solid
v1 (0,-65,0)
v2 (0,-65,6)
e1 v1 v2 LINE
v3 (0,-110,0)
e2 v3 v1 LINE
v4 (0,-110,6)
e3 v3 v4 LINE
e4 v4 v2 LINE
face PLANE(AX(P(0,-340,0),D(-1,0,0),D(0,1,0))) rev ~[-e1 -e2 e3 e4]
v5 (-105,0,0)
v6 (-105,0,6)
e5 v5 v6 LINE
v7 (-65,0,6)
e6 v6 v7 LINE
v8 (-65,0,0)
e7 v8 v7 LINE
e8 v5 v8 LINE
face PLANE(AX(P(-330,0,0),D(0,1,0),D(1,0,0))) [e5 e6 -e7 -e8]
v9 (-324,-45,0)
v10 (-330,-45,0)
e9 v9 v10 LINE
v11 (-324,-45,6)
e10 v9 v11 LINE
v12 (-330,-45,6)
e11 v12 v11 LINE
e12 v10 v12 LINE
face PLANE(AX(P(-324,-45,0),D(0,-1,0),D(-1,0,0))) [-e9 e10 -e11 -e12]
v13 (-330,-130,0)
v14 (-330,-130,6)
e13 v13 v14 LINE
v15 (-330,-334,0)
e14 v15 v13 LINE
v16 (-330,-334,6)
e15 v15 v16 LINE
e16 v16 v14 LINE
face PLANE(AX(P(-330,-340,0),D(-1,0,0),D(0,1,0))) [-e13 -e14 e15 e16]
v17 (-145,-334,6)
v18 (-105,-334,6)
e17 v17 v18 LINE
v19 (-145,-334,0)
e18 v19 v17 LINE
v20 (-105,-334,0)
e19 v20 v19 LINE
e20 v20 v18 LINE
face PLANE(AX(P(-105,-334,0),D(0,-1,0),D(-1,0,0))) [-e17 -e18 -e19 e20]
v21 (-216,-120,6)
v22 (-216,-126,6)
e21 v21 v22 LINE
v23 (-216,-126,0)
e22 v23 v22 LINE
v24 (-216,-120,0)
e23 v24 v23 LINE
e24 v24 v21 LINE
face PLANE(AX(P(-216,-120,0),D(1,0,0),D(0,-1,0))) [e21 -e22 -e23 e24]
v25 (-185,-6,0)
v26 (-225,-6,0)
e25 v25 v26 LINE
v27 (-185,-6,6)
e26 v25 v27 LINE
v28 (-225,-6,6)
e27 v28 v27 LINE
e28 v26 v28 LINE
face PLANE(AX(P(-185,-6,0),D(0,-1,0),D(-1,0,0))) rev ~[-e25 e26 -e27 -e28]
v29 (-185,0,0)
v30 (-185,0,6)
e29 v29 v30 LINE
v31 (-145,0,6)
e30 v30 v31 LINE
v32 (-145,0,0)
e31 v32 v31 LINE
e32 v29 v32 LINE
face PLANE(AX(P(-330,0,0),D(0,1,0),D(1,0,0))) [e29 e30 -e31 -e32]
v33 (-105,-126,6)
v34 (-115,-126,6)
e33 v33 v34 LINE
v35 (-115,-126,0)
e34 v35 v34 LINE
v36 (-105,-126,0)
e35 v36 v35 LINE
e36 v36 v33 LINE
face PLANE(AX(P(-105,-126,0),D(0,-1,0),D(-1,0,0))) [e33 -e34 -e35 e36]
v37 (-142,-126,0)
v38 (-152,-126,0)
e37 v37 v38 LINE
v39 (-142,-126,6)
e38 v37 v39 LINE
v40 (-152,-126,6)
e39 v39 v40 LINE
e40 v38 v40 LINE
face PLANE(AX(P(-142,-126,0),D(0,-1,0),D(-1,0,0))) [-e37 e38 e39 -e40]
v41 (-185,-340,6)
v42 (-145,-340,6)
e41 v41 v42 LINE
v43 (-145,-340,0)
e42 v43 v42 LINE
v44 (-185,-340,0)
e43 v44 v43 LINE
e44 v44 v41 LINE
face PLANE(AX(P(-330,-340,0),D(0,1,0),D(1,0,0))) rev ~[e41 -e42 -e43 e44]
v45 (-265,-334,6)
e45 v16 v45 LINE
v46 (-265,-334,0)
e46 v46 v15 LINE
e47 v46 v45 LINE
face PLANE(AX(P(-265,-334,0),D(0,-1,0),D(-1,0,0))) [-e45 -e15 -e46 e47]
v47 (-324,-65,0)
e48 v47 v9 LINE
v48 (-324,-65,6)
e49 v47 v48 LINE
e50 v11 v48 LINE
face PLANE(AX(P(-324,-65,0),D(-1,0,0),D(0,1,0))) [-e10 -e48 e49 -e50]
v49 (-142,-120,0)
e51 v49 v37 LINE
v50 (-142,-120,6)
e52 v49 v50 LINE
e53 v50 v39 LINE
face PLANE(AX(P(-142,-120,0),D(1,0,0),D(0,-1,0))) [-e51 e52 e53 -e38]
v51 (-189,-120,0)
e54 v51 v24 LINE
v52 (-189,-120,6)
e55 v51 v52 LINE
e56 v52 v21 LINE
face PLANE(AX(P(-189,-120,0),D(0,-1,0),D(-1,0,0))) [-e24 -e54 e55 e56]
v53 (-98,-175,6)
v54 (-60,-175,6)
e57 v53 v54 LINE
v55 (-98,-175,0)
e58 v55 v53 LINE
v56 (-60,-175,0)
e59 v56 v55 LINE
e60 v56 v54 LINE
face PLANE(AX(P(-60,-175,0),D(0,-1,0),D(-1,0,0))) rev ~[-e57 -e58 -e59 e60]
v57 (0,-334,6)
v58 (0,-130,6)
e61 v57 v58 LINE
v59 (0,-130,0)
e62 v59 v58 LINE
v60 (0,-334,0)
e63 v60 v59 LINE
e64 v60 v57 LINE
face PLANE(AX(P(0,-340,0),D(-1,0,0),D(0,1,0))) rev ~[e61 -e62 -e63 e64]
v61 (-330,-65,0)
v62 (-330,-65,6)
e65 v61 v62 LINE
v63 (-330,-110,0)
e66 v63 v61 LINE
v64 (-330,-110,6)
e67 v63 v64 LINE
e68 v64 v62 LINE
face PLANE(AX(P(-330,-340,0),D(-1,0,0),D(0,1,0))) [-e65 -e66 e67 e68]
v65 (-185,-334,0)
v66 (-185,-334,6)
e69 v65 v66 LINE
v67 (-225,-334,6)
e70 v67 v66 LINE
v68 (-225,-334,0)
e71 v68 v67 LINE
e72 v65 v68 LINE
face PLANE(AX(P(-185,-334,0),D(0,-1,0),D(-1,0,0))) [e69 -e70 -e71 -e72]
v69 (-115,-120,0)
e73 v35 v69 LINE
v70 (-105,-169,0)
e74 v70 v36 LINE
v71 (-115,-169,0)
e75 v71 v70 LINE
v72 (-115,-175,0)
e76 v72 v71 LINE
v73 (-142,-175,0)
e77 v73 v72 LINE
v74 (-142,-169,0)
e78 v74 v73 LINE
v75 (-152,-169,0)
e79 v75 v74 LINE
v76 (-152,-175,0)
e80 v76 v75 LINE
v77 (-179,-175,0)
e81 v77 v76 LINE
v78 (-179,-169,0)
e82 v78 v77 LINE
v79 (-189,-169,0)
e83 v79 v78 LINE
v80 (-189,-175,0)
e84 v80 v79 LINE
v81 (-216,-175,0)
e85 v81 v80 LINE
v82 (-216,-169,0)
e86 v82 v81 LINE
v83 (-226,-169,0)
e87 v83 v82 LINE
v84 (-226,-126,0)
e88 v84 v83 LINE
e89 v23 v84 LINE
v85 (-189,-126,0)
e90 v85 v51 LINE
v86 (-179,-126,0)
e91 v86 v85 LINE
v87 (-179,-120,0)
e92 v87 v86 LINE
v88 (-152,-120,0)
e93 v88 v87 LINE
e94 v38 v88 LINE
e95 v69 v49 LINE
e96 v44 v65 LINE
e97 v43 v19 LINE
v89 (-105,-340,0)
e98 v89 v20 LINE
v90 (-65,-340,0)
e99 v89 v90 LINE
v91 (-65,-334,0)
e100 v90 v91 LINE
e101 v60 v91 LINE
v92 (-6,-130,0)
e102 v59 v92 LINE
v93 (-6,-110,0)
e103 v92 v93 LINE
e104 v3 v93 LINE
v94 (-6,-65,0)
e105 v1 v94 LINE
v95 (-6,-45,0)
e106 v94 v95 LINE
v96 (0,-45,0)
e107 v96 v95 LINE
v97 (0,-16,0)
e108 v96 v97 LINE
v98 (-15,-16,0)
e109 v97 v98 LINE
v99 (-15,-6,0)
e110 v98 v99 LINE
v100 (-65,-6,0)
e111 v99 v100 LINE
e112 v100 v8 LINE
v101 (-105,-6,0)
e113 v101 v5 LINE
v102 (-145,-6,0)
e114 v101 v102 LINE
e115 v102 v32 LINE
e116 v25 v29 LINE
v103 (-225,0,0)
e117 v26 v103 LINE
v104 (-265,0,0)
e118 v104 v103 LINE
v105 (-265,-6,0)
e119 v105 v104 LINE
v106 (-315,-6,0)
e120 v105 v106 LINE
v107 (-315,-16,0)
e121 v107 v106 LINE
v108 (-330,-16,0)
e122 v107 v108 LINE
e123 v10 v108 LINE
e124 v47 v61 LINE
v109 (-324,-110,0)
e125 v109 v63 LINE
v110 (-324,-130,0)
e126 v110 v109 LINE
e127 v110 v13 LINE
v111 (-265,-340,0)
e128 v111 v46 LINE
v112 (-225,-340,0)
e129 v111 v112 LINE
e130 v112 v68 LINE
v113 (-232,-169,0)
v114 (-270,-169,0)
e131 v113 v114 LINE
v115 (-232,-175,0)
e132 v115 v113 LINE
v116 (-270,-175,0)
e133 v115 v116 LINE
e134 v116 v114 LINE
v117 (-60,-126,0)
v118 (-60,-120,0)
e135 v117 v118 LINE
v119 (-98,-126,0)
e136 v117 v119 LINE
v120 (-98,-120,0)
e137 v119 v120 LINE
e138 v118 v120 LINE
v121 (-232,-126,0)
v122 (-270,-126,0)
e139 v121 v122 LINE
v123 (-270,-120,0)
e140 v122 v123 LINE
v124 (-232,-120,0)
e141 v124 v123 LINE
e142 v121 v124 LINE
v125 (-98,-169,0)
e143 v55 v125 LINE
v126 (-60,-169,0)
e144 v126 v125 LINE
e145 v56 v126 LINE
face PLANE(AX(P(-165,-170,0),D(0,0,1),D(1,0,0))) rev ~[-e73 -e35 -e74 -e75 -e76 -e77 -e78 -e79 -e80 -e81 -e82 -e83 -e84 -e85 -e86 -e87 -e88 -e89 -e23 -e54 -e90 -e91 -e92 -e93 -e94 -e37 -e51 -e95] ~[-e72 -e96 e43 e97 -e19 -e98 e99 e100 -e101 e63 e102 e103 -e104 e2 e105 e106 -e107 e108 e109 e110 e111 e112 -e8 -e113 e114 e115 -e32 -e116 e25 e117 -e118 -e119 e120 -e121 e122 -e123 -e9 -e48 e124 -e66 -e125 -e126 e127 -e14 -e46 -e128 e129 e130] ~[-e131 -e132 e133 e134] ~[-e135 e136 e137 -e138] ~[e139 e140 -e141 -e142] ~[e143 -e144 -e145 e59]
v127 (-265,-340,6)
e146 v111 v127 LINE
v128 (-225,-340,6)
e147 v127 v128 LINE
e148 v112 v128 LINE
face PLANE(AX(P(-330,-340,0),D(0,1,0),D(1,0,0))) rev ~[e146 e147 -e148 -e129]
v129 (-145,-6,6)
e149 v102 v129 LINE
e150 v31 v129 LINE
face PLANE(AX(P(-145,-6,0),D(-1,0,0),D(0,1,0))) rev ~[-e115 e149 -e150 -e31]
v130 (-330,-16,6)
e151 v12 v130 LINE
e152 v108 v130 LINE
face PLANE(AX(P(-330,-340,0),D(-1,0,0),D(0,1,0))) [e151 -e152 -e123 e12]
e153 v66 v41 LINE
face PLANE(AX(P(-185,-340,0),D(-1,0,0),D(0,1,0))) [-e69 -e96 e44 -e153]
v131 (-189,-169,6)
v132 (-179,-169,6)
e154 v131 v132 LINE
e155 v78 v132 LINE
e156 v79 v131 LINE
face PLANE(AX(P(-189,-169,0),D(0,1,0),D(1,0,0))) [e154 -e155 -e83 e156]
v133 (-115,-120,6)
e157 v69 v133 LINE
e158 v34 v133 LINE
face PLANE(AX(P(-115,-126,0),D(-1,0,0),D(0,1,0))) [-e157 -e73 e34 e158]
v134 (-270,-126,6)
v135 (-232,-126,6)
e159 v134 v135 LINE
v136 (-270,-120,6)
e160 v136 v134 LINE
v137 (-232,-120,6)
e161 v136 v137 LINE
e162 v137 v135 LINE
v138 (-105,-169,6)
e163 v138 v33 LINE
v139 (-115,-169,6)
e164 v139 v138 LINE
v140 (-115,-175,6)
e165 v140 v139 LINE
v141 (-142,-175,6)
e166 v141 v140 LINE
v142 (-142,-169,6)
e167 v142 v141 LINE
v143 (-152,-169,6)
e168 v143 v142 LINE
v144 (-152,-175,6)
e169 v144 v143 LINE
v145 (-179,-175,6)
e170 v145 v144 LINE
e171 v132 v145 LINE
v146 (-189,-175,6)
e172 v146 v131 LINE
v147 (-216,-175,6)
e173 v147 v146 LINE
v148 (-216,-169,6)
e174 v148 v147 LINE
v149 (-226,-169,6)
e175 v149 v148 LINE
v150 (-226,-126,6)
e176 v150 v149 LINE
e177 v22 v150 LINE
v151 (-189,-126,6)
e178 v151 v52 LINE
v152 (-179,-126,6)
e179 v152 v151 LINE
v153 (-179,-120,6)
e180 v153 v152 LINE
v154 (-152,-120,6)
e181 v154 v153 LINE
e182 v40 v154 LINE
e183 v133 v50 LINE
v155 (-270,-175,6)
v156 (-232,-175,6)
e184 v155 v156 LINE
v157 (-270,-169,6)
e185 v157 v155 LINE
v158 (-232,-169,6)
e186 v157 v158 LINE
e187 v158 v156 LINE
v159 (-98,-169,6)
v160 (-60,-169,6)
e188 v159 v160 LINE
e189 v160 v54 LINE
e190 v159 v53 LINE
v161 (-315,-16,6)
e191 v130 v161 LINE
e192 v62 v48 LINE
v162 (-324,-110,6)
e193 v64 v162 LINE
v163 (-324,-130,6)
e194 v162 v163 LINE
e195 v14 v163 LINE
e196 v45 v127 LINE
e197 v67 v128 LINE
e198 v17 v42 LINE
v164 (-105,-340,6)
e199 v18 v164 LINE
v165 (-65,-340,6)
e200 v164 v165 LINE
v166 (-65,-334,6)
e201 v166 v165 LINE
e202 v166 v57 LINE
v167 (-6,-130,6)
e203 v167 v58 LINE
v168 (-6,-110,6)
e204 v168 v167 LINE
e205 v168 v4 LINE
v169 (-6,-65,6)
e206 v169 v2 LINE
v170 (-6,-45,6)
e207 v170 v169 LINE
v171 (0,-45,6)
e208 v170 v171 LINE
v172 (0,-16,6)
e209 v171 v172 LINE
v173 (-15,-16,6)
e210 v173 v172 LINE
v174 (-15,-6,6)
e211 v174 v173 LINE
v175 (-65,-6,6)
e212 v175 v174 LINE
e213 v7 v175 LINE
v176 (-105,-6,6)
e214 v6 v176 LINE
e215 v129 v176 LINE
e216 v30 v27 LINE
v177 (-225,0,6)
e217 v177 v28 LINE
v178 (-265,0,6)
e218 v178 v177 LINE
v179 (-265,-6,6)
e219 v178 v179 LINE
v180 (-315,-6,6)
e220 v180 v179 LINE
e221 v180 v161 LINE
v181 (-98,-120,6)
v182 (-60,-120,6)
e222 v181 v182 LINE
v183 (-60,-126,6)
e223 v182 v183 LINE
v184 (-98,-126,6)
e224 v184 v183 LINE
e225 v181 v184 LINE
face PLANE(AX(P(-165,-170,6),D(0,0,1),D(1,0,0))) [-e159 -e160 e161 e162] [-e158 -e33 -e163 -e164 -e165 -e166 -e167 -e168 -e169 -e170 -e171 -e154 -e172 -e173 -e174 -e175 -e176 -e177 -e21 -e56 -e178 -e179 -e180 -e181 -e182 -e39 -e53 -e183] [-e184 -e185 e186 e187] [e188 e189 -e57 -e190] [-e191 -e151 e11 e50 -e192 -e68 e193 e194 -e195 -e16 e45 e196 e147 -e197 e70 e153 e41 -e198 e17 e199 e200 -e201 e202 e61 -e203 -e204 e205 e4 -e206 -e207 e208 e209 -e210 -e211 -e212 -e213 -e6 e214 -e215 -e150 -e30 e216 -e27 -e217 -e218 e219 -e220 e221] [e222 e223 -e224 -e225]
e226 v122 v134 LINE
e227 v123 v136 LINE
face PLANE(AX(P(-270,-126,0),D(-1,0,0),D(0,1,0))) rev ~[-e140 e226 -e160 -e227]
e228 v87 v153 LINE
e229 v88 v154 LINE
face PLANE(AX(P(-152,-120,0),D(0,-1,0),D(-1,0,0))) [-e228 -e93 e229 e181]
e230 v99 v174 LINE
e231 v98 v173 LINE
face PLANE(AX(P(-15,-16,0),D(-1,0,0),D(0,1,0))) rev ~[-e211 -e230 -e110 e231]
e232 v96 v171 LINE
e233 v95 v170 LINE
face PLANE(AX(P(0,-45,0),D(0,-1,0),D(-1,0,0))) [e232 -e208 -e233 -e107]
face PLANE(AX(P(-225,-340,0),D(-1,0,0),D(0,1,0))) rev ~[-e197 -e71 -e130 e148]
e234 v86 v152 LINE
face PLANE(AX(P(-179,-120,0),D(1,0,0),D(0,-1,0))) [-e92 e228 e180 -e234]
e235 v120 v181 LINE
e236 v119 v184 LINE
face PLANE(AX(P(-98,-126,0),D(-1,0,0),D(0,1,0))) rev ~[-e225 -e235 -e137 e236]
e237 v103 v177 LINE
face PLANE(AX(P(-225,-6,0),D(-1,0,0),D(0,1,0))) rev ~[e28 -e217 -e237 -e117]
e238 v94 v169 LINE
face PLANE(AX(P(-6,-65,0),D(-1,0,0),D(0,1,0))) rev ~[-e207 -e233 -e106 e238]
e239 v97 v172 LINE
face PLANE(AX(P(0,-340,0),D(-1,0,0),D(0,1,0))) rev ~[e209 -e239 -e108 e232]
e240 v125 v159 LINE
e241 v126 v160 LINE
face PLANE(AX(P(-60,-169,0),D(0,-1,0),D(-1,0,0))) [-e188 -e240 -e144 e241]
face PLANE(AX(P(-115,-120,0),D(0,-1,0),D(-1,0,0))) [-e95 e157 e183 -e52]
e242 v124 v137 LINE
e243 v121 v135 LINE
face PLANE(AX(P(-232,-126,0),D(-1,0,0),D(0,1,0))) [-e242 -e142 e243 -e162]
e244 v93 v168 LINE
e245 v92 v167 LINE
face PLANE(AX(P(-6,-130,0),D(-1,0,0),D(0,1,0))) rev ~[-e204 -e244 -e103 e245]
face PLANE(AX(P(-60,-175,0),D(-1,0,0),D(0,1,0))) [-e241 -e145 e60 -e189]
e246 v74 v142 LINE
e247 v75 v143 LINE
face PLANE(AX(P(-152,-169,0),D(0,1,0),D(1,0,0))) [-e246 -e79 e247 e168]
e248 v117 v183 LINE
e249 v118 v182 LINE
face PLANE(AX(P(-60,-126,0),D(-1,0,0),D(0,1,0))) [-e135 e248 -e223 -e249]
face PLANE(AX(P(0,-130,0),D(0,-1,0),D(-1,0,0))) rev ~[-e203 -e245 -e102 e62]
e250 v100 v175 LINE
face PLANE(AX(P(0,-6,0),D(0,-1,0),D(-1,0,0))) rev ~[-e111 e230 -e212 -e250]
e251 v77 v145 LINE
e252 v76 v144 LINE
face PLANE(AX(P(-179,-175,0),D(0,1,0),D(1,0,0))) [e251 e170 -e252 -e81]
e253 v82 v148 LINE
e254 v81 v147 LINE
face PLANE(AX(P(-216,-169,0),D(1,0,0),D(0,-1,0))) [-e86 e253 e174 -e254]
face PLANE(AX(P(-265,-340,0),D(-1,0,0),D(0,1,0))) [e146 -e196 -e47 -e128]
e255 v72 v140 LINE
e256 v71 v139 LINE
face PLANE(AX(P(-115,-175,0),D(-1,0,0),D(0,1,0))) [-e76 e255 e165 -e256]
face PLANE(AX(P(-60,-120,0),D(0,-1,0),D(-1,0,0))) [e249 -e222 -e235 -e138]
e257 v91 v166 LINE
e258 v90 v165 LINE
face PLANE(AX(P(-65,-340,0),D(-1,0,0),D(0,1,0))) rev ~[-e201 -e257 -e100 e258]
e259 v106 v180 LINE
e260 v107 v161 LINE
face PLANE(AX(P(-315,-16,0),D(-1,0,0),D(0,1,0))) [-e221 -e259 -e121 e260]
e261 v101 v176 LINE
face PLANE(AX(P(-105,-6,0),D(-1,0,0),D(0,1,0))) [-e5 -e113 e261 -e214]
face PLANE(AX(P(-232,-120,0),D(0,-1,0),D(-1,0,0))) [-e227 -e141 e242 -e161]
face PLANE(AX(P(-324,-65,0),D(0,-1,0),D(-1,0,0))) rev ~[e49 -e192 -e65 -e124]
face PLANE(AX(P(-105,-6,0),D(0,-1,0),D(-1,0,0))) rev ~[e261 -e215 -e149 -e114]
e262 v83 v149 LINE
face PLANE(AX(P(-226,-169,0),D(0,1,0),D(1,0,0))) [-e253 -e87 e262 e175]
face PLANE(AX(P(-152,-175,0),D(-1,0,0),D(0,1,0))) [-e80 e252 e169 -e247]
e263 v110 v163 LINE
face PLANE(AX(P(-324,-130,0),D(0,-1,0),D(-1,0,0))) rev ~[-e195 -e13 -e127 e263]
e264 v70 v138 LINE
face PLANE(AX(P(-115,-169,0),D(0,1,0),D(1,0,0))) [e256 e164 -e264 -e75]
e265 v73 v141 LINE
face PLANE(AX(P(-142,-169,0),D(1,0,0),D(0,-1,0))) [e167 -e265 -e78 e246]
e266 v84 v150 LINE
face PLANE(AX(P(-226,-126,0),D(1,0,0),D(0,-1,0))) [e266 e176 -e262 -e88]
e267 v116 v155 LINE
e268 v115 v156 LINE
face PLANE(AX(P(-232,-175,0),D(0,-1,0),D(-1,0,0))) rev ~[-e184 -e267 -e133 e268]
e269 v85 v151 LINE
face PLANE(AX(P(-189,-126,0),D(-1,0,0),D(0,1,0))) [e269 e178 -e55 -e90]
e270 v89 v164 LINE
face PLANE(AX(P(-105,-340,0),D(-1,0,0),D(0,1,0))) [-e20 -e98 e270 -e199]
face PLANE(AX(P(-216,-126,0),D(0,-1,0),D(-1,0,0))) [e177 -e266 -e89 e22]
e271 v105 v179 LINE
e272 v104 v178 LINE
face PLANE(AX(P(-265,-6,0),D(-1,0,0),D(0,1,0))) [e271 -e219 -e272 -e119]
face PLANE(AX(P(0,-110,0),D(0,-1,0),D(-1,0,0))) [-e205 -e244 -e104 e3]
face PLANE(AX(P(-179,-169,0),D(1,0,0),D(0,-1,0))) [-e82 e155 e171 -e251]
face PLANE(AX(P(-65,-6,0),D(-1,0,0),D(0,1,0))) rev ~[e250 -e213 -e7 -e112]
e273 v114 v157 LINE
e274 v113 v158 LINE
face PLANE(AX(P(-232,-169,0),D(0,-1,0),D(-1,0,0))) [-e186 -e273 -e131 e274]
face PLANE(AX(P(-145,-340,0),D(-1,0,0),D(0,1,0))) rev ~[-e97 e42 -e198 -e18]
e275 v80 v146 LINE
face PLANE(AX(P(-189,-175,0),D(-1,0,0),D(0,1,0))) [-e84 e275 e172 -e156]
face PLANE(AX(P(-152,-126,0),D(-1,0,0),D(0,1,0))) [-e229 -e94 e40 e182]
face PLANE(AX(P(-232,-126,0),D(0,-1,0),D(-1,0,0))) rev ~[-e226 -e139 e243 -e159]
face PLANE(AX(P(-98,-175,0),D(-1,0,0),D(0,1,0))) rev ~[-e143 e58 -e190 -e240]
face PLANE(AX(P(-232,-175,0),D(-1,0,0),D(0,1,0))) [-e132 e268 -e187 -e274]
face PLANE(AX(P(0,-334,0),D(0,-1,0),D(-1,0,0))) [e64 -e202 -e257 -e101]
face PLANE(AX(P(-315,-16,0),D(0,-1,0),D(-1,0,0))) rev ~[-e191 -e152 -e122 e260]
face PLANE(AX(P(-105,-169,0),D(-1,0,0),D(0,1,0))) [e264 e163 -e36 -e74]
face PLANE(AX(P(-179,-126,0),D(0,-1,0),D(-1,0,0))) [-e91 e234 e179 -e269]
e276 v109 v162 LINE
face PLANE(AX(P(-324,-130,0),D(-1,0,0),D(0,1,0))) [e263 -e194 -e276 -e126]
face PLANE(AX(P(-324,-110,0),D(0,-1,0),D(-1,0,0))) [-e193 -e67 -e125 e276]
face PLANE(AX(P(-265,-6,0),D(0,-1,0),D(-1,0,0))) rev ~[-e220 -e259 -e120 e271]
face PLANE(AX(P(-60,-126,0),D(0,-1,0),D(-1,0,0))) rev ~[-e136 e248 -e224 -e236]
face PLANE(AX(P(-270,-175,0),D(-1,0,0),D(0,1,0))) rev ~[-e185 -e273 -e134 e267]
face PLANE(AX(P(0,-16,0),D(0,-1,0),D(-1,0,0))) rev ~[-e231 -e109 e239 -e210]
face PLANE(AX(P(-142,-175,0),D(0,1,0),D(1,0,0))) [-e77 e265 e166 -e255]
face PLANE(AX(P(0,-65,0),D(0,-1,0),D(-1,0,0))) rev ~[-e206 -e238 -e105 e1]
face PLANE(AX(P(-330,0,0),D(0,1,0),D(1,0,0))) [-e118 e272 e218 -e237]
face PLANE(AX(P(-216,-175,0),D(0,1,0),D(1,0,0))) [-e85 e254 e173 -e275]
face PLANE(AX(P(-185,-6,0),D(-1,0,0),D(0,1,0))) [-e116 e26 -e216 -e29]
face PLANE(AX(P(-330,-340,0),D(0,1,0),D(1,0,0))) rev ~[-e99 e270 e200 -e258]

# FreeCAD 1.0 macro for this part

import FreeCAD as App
import Part
import Sketcher
from FreeCAD import Vector

doc = App.newDocument("Part")
params = doc.addObject("Spreadsheet::Sheet", "Params")
for row, (alias, value) in enumerate([
    ("sketch1_width", "330 mm"),
    ("sketch1_height", "340 mm"),
    ("pad1_length", "6 mm"),
    ("sketch2_width", "65 mm"),
    ("sketch2_width2", "40 mm"),
    ("sketch2_width3", "6 mm"),
    ("sketch2_height", "20 mm"),
    ("sketch3_width", "38 mm"),
    ("sketch3_width2", "15 mm"),
    ("sketch3_height", "6 mm"),
    ("sketch3_height2", "10 mm"),
    ("sketch4_width", "10 mm"),
    ("sketch4_width2", "27 mm"),
    ("sketch4_height", "43 mm"),
    ("sketch4_height2", "6 mm"),
    ("pocket3_length", "6 mm"),
], start=1):
    params.set(f"A{row}", alias)
    params.set(f"B{row}", "=" + value)
    params.setAlias(f"B{row}", alias)

body = doc.addObject("PartDesign::Body", "Body")

# Sketch on XY plane
sketch1 = body.newObject("Sketcher::SketchObject", "Sketch")
sketch1.AttachmentSupport = (doc.getObject("XY_Plane"), [""])
sketch1.MapMode = "FlatFace"
sketch1.addGeometry([
    Part.LineSegment(Vector(-330, 0, 0), Vector(-330, -340, 0)),
    Part.LineSegment(Vector(-330, -340, 0), Vector(0, -340, 0)),
    Part.LineSegment(Vector(0, -340, 0), Vector(0, 0, 0)),
    Part.LineSegment(Vector(0, 0, 0), Vector(-330, 0, 0)),
], False)
sketch1.addConstraint([
    Sketcher.Constraint("Coincident", 0, 2, 1, 1),
    Sketcher.Constraint("Coincident", 1, 2, 2, 1),
    Sketcher.Constraint("Coincident", 2, 2, 3, 1),
    Sketcher.Constraint("Coincident", 3, 2, 0, 1),
    Sketcher.Constraint("Vertical", 0),
    Sketcher.Constraint("Horizontal", 1),
    Sketcher.Constraint("Vertical", 2),
    Sketcher.Constraint("Horizontal", 3),
    Sketcher.Constraint("Coincident", 2, 2, -1, 1),
    Sketcher.Constraint("DistanceX", 1, 1, 1, 2, 330.0),
    Sketcher.Constraint("DistanceY", 0, 2, 0, 1, 340.0),
])
sketch1.setExpression("Constraints[9]", "Params.sketch1_width")
sketch1.setExpression("Constraints[10]", "Params.sketch1_height")
pad1 = body.newObject("PartDesign::Pad", "Pad")
pad1.Profile = sketch1
pad1.setExpression("Length", "Params.pad1_length")

# Sketch on XY plane
sketch2 = body.newObject("Sketcher::SketchObject", "Sketch001")
sketch2.AttachmentSupport = (doc.getObject("XY_Plane"), [""])
sketch2.MapMode = "FlatFace"
sketch2.addGeometry([
    Part.LineSegment(Vector(-265, 0, 0), Vector(-265, -6, 0)),  # 0
    Part.LineSegment(Vector(-265, -6, 0), Vector(-330, -6, 0)),  # 1
    Part.LineSegment(Vector(-330, -6, 0), Vector(-330, 0, 0)),  # 2
    Part.LineSegment(Vector(-330, 0, 0), Vector(-265, 0, 0)),  # 3
    Part.LineSegment(Vector(-185, 0, 0), Vector(-185, -6, 0)),  # 4
    Part.LineSegment(Vector(-185, -6, 0), Vector(-225, -6, 0)),  # 5
    Part.LineSegment(Vector(-225, -6, 0), Vector(-225, 0, 0)),  # 6
    Part.LineSegment(Vector(-225, 0, 0), Vector(-185, 0, 0)),  # 7
    Part.LineSegment(Vector(-105, 0, 0), Vector(-105, -6, 0)),  # 8
    Part.LineSegment(Vector(-105, -6, 0), Vector(-145, -6, 0)),  # 9
    Part.LineSegment(Vector(-145, -6, 0), Vector(-145, 0, 0)),  # 10
    Part.LineSegment(Vector(-145, 0, 0), Vector(-105, 0, 0)),  # 11
    Part.LineSegment(Vector(0, 0, 0), Vector(0, -6, 0)),  # 12
    Part.LineSegment(Vector(0, -6, 0), Vector(-65, -6, 0)),  # 13
    Part.LineSegment(Vector(-65, -6, 0), Vector(-65, 0, 0)),  # 14
    Part.LineSegment(Vector(-65, 0, 0), Vector(0, 0, 0)),  # 15
    Part.LineSegment(Vector(-324, -45, 0), Vector(-324, -65, 0)),  # 16
    Part.LineSegment(Vector(-324, -65, 0), Vector(-330, -65, 0)),  # 17
    Part.LineSegment(Vector(-330, -65, 0), Vector(-330, -45, 0)),  # 18
    Part.LineSegment(Vector(-330, -45, 0), Vector(-324, -45, 0)),  # 19
    Part.LineSegment(Vector(0, -45, 0), Vector(0, -65, 0)),  # 20
    Part.LineSegment(Vector(0, -65, 0), Vector(-6, -65, 0)),  # 21
    Part.LineSegment(Vector(-6, -65, 0), Vector(-6, -45, 0)),  # 22
    Part.LineSegment(Vector(-6, -45, 0), Vector(0, -45, 0)),  # 23
    Part.LineSegment(Vector(-265, -334, 0), Vector(-265, -340, 0)),  # 24
    Part.LineSegment(Vector(-265, -340, 0), Vector(-330, -340, 0)),  # 25
    Part.LineSegment(Vector(-330, -340, 0), Vector(-330, -334, 0)),  # 26
    Part.LineSegment(Vector(-330, -334, 0), Vector(-265, -334, 0)),  # 27
    Part.LineSegment(Vector(-185, -334, 0), Vector(-185, -340, 0)),  # 28
    Part.LineSegment(Vector(-185, -340, 0), Vector(-225, -340, 0)),  # 29
    Part.LineSegment(Vector(-225, -340, 0), Vector(-225, -334, 0)),  # 30
    Part.LineSegment(Vector(-225, -334, 0), Vector(-185, -334, 0)),  # 31
    Part.LineSegment(Vector(-105, -334, 0), Vector(-105, -340, 0)),  # 32
    Part.LineSegment(Vector(-105, -340, 0), Vector(-145, -340, 0)),  # 33
    Part.LineSegment(Vector(-145, -340, 0), Vector(-145, -334, 0)),  # 34
    Part.LineSegment(Vector(-145, -334, 0), Vector(-105, -334, 0)),  # 35
    Part.LineSegment(Vector(0, -334, 0), Vector(0, -340, 0)),  # 36
    Part.LineSegment(Vector(0, -340, 0), Vector(-65, -340, 0)),  # 37
    Part.LineSegment(Vector(-65, -340, 0), Vector(-65, -334, 0)),  # 38
    Part.LineSegment(Vector(-65, -334, 0), Vector(0, -334, 0)),  # 39
    Part.LineSegment(Vector(-324, -110, 0), Vector(-324, -130, 0)),  # 40
    Part.LineSegment(Vector(-324, -130, 0), Vector(-330, -130, 0)),  # 41
    Part.LineSegment(Vector(-330, -130, 0), Vector(-330, -110, 0)),  # 42
    Part.LineSegment(Vector(-330, -110, 0), Vector(-324, -110, 0)),  # 43
    Part.LineSegment(Vector(0, -110, 0), Vector(0, -130, 0)),  # 44
    Part.LineSegment(Vector(0, -130, 0), Vector(-6, -130, 0)),  # 45
    Part.LineSegment(Vector(-6, -130, 0), Vector(-6, -110, 0)),  # 46
    Part.LineSegment(Vector(-6, -110, 0), Vector(0, -110, 0)),  # 47
], False)
sketch2.addConstraint([
    Sketcher.Constraint("Coincident", 0, 2, 1, 1),
    Sketcher.Constraint("Coincident", 1, 2, 2, 1),
    Sketcher.Constraint("Coincident", 2, 2, 3, 1),
    Sketcher.Constraint("Coincident", 3, 2, 0, 1),
    Sketcher.Constraint("Coincident", 4, 2, 5, 1),
    Sketcher.Constraint("Coincident", 5, 2, 6, 1),
    Sketcher.Constraint("Coincident", 6, 2, 7, 1),
    Sketcher.Constraint("Coincident", 7, 2, 4, 1),
    Sketcher.Constraint("Coincident", 8, 2, 9, 1),
    Sketcher.Constraint("Coincident", 9, 2, 10, 1),
    Sketcher.Constraint("Coincident", 10, 2, 11, 1),
    Sketcher.Constraint("Coincident", 11, 2, 8, 1),
    Sketcher.Constraint("Coincident", 12, 2, 13, 1),
    Sketcher.Constraint("Coincident", 13, 2, 14, 1),
    Sketcher.Constraint("Coincident", 14, 2, 15, 1),
    Sketcher.Constraint("Coincident", 15, 2, 12, 1),
    Sketcher.Constraint("Coincident", 16, 2, 17, 1),
    Sketcher.Constraint("Coincident", 17, 2, 18, 1),
    Sketcher.Constraint("Coincident", 18, 2, 19, 1),
    Sketcher.Constraint("Coincident", 19, 2, 16, 1),
    Sketcher.Constraint("Coincident", 20, 2, 21, 1),
    Sketcher.Constraint("Coincident", 21, 2, 22, 1),
    Sketcher.Constraint("Coincident", 22, 2, 23, 1),
    Sketcher.Constraint("Coincident", 23, 2, 20, 1),
    Sketcher.Constraint("Coincident", 24, 2, 25, 1),
    Sketcher.Constraint("Coincident", 25, 2, 26, 1),
    Sketcher.Constraint("Coincident", 26, 2, 27, 1),
    Sketcher.Constraint("Coincident", 27, 2, 24, 1),
    Sketcher.Constraint("Coincident", 28, 2, 29, 1),
    Sketcher.Constraint("Coincident", 29, 2, 30, 1),
    Sketcher.Constraint("Coincident", 30, 2, 31, 1),
    Sketcher.Constraint("Coincident", 31, 2, 28, 1),
    Sketcher.Constraint("Coincident", 32, 2, 33, 1),
    Sketcher.Constraint("Coincident", 33, 2, 34, 1),
    Sketcher.Constraint("Coincident", 34, 2, 35, 1),
    Sketcher.Constraint("Coincident", 35, 2, 32, 1),
    Sketcher.Constraint("Coincident", 36, 2, 37, 1),
    Sketcher.Constraint("Coincident", 37, 2, 38, 1),
    Sketcher.Constraint("Coincident", 38, 2, 39, 1),
    Sketcher.Constraint("Coincident", 39, 2, 36, 1),
    Sketcher.Constraint("Coincident", 40, 2, 41, 1),
    Sketcher.Constraint("Coincident", 41, 2, 42, 1),
    Sketcher.Constraint("Coincident", 42, 2, 43, 1),
    Sketcher.Constraint("Coincident", 43, 2, 40, 1),
    Sketcher.Constraint("Coincident", 44, 2, 45, 1),
    Sketcher.Constraint("Coincident", 45, 2, 46, 1),
    Sketcher.Constraint("Coincident", 46, 2, 47, 1),
    Sketcher.Constraint("Coincident", 47, 2, 44, 1),
    Sketcher.Constraint("Vertical", 0),
    Sketcher.Constraint("Horizontal", 1),
    Sketcher.Constraint("Vertical", 2),
    Sketcher.Constraint("Horizontal", 3),
    Sketcher.Constraint("Vertical", 4),
    Sketcher.Constraint("Horizontal", 5),
    Sketcher.Constraint("Vertical", 6),
    Sketcher.Constraint("Horizontal", 7),
    Sketcher.Constraint("Vertical", 8),
    Sketcher.Constraint("Horizontal", 9),
    Sketcher.Constraint("Vertical", 10),
    Sketcher.Constraint("Horizontal", 11),
    Sketcher.Constraint("Vertical", 12),
    Sketcher.Constraint("Horizontal", 13),
    Sketcher.Constraint("Vertical", 14),
    Sketcher.Constraint("Horizontal", 15),
    Sketcher.Constraint("Vertical", 16),
    Sketcher.Constraint("Horizontal", 17),
    Sketcher.Constraint("Vertical", 18),
    Sketcher.Constraint("Horizontal", 19),
    Sketcher.Constraint("Vertical", 20),
    Sketcher.Constraint("Horizontal", 21),
    Sketcher.Constraint("Vertical", 22),
    Sketcher.Constraint("Horizontal", 23),
    Sketcher.Constraint("Vertical", 24),
    Sketcher.Constraint("Horizontal", 25),
    Sketcher.Constraint("Vertical", 26),
    Sketcher.Constraint("Horizontal", 27),
    Sketcher.Constraint("Vertical", 28),
    Sketcher.Constraint("Horizontal", 29),
    Sketcher.Constraint("Vertical", 30),
    Sketcher.Constraint("Horizontal", 31),
    Sketcher.Constraint("Vertical", 32),
    Sketcher.Constraint("Horizontal", 33),
    Sketcher.Constraint("Vertical", 34),
    Sketcher.Constraint("Horizontal", 35),
    Sketcher.Constraint("Vertical", 36),
    Sketcher.Constraint("Horizontal", 37),
    Sketcher.Constraint("Vertical", 38),
    Sketcher.Constraint("Horizontal", 39),
    Sketcher.Constraint("Vertical", 40),
    Sketcher.Constraint("Horizontal", 41),
    Sketcher.Constraint("Vertical", 42),
    Sketcher.Constraint("Horizontal", 43),
    Sketcher.Constraint("Vertical", 44),
    Sketcher.Constraint("Horizontal", 45),
    Sketcher.Constraint("Vertical", 46),
    Sketcher.Constraint("Horizontal", 47),
    Sketcher.Constraint("Coincident", 15, 2, -1, 1),
    Sketcher.Constraint("PointOnObject", 2, 2, -1),
    Sketcher.Constraint("PointOnObject", 6, 2, -1),
    Sketcher.Constraint("PointOnObject", 10, 2, -1),
    Sketcher.Constraint("PointOnObject", 20, 2, -2),
    Sketcher.Constraint("PointOnObject", 36, 2, -2),
    Sketcher.Constraint("PointOnObject", 44, 2, -2),
    Sketcher.Constraint("Horizontal", 1, 2, 4, 2),
    Sketcher.Constraint("Horizontal", 5, 2, 8, 2),
    Sketcher.Constraint("Horizontal", 9, 2, 12, 2),
    Sketcher.Constraint("Horizontal", 17, 2, 20, 2),
    Sketcher.Constraint("Horizontal", 19, 2, 22, 2),
    Sketcher.Constraint("Horizontal", 25, 2, 28, 2),
    Sketcher.Constraint("Horizontal", 27, 2, 30, 2),
    Sketcher.Constraint("Horizontal", 29, 2, 32, 2),
    Sketcher.Constraint("Horizontal", 31, 2, 34, 2),
    Sketcher.Constraint("Horizontal", 33, 2, 36, 2),
    Sketcher.Constraint("Horizontal", 35, 2, 38, 2),
    Sketcher.Constraint("Horizontal", 41, 2, 44, 2),
    Sketcher.Constraint("Horizontal", 43, 2, 46, 2),
    Sketcher.Constraint("Vertical", 2, 2, 17, 2),
    Sketcher.Constraint("Vertical", 3, 2, 24, 2),
    Sketcher.Constraint("Vertical", 18, 2, 25, 2),
    Sketcher.Constraint("Vertical", 7, 2, 28, 2),
    Sketcher.Constraint("Vertical", 6, 2, 29, 2),
    Sketcher.Constraint("Vertical", 11, 2, 32, 2),
    Sketcher.Constraint("Vertical", 10, 2, 33, 2),
    Sketcher.Constraint("Vertical", 14, 2, 37, 2),
    Sketcher.Constraint("Vertical", 19, 2, 40, 2),
    Sketcher.Constraint("Vertical", 26, 2, 41, 2),
    Sketcher.Constraint("Vertical", 22, 2, 45, 2),
    Sketcher.Constraint("Equal", 7, 9),
    Sketcher.Constraint("Equal", 3, 13),
    Sketcher.Constraint("Equal", 19, 21),
    Sketcher.Constraint("Equal", 47, 0),
    Sketcher.Constraint("Equal", 14, 24),
    Sketcher.Constraint("Equal", 22, 40),
    Sketcher.Constraint("DistanceX", 1, 2, 1, 1, 65.0),
    Sketcher.Constraint("DistanceX", 5, 2, 5, 1, 40.0),
    Sketcher.Constraint("DistanceX", 17, 2, 17, 1, 6.0),
    Sketcher.Constraint("DistanceY", 16, 2, 16, 1, 20.0),
    Sketcher.Constraint("DistanceX", 0, 2, -1, 1, 265.0),
    Sketcher.Constraint("DistanceX", 4, 2, -1, 1, 185.0),
    Sketcher.Constraint("DistanceX", 8, 2, -1, 1, 105.0),
    Sketcher.Constraint("DistanceY", 16, 2, -1, 1, 65.0),
    Sketcher.Constraint("DistanceY", 24, 2, -1, 1, 340.0),
    Sketcher.Constraint("DistanceY", 40, 2, -1, 1, 130.0),
])
sketch2.setExpression("Constraints[133]", "Params.sketch2_width")
sketch2.setExpression("Constraints[134]", "Params.sketch2_width2")
sketch2.setExpression("Constraints[135]", "Params.sketch2_width3")
sketch2.setExpression("Constraints[136]", "Params.sketch2_height")
pocket1 = body.newObject("PartDesign::Pocket", "Pocket")
pocket1.Profile = sketch2
pocket1.Type = "ThroughAll"
pocket1.Reversed = True

# Sketch on XY plane
sketch3 = body.newObject("Sketcher::SketchObject", "Sketch002")
sketch3.AttachmentSupport = (doc.getObject("XY_Plane"), [""])
sketch3.MapMode = "FlatFace"
sketch3.addGeometry([
    Part.LineSegment(Vector(-232, -169, 0), Vector(-232, -175, 0)),  # 0
    Part.LineSegment(Vector(-232, -175, 0), Vector(-270, -175, 0)),  # 1
    Part.LineSegment(Vector(-270, -175, 0), Vector(-270, -169, 0)),  # 2
    Part.LineSegment(Vector(-270, -169, 0), Vector(-232, -169, 0)),  # 3
    Part.LineSegment(Vector(-60, -169, 0), Vector(-60, -175, 0)),  # 4
    Part.LineSegment(Vector(-60, -175, 0), Vector(-98, -175, 0)),  # 5
    Part.LineSegment(Vector(-98, -175, 0), Vector(-98, -169, 0)),  # 6
    Part.LineSegment(Vector(-98, -169, 0), Vector(-60, -169, 0)),  # 7
    Part.LineSegment(Vector(-315, -6, 0), Vector(-315, -16, 0)),  # 8
    Part.LineSegment(Vector(-315, -16, 0), Vector(-330, -16, 0)),  # 9
    Part.LineSegment(Vector(-330, -16, 0), Vector(-330, -6, 0)),  # 10
    Part.LineSegment(Vector(-330, -6, 0), Vector(-315, -6, 0)),  # 11
    Part.LineSegment(Vector(0, -6, 0), Vector(0, -16, 0)),  # 12
    Part.LineSegment(Vector(0, -16, 0), Vector(-15, -16, 0)),  # 13
    Part.LineSegment(Vector(-15, -16, 0), Vector(-15, -6, 0)),  # 14
    Part.LineSegment(Vector(-15, -6, 0), Vector(0, -6, 0)),  # 15
    Part.LineSegment(Vector(-232, -120, 0), Vector(-232, -126, 0)),  # 16
    Part.LineSegment(Vector(-232, -126, 0), Vector(-270, -126, 0)),  # 17
    Part.LineSegment(Vector(-270, -126, 0), Vector(-270, -120, 0)),  # 18
    Part.LineSegment(Vector(-270, -120, 0), Vector(-232, -120, 0)),  # 19
    Part.LineSegment(Vector(-60, -120, 0), Vector(-60, -126, 0)),  # 20
    Part.LineSegment(Vector(-60, -126, 0), Vector(-98, -126, 0)),  # 21
    Part.LineSegment(Vector(-98, -126, 0), Vector(-98, -120, 0)),  # 22
    Part.LineSegment(Vector(-98, -120, 0), Vector(-60, -120, 0)),  # 23
], False)
sketch3.addConstraint([
    Sketcher.Constraint("Coincident", 0, 2, 1, 1),
    Sketcher.Constraint("Coincident", 1, 2, 2, 1),
    Sketcher.Constraint("Coincident", 2, 2, 3, 1),
    Sketcher.Constraint("Coincident", 3, 2, 0, 1),
    Sketcher.Constraint("Coincident", 4, 2, 5, 1),
    Sketcher.Constraint("Coincident", 5, 2, 6, 1),
    Sketcher.Constraint("Coincident", 6, 2, 7, 1),
    Sketcher.Constraint("Coincident", 7, 2, 4, 1),
    Sketcher.Constraint("Coincident", 8, 2, 9, 1),
    Sketcher.Constraint("Coincident", 9, 2, 10, 1),
    Sketcher.Constraint("Coincident", 10, 2, 11, 1),
    Sketcher.Constraint("Coincident", 11, 2, 8, 1),
    Sketcher.Constraint("Coincident", 12, 2, 13, 1),
    Sketcher.Constraint("Coincident", 13, 2, 14, 1),
    Sketcher.Constraint("Coincident", 14, 2, 15, 1),
    Sketcher.Constraint("Coincident", 15, 2, 12, 1),
    Sketcher.Constraint("Coincident", 16, 2, 17, 1),
    Sketcher.Constraint("Coincident", 17, 2, 18, 1),
    Sketcher.Constraint("Coincident", 18, 2, 19, 1),
    Sketcher.Constraint("Coincident", 19, 2, 16, 1),
    Sketcher.Constraint("Coincident", 20, 2, 21, 1),
    Sketcher.Constraint("Coincident", 21, 2, 22, 1),
    Sketcher.Constraint("Coincident", 22, 2, 23, 1),
    Sketcher.Constraint("Coincident", 23, 2, 20, 1),
    Sketcher.Constraint("Vertical", 0),
    Sketcher.Constraint("Horizontal", 1),
    Sketcher.Constraint("Vertical", 2),
    Sketcher.Constraint("Horizontal", 3),
    Sketcher.Constraint("Vertical", 4),
    Sketcher.Constraint("Horizontal", 5),
    Sketcher.Constraint("Vertical", 6),
    Sketcher.Constraint("Horizontal", 7),
    Sketcher.Constraint("Vertical", 8),
    Sketcher.Constraint("Horizontal", 9),
    Sketcher.Constraint("Vertical", 10),
    Sketcher.Constraint("Horizontal", 11),
    Sketcher.Constraint("Vertical", 12),
    Sketcher.Constraint("Horizontal", 13),
    Sketcher.Constraint("Vertical", 14),
    Sketcher.Constraint("Horizontal", 15),
    Sketcher.Constraint("Vertical", 16),
    Sketcher.Constraint("Horizontal", 17),
    Sketcher.Constraint("Vertical", 18),
    Sketcher.Constraint("Horizontal", 19),
    Sketcher.Constraint("Vertical", 20),
    Sketcher.Constraint("Horizontal", 21),
    Sketcher.Constraint("Vertical", 22),
    Sketcher.Constraint("Horizontal", 23),
    Sketcher.Constraint("PointOnObject", 12, 2, -2),
    Sketcher.Constraint("Horizontal", 1, 2, 4, 2),
    Sketcher.Constraint("Horizontal", 3, 2, 6, 2),
    Sketcher.Constraint("Horizontal", 9, 2, 12, 2),
    Sketcher.Constraint("Horizontal", 11, 2, 14, 2),
    Sketcher.Constraint("Horizontal", 17, 2, 20, 2),
    Sketcher.Constraint("Horizontal", 19, 2, 22, 2),
    Sketcher.Constraint("Vertical", 3, 2, 16, 2),
    Sketcher.Constraint("Vertical", 2, 2, 17, 2),
    Sketcher.Constraint("Vertical", 7, 2, 20, 2),
    Sketcher.Constraint("Vertical", 6, 2, 21, 2),
    Sketcher.Constraint("Equal", 3, 5),
    Sketcher.Constraint("Equal", 11, 13),
    Sketcher.Constraint("Equal", 6, 16),
    Sketcher.Constraint("DistanceX", 1, 2, 1, 1, 38.0),
    Sketcher.Constraint("DistanceX", 9, 2, 9, 1, 15.0),
    Sketcher.Constraint("DistanceY", 0, 2, 0, 1, 6.0),
    Sketcher.Constraint("DistanceY", 8, 2, 8, 1, 10.0),
    Sketcher.Constraint("DistanceX", 0, 2, -1, 1, 232.0),
    Sketcher.Constraint("DistanceY", 0, 2, -1, 1, 175.0),
    Sketcher.Constraint("DistanceX", 4, 2, -1, 1, 60.0),
    Sketcher.Constraint("DistanceX", 8, 2, -1, 1, 315.0),
    Sketcher.Constraint("DistanceY", 8, 2, -1, 1, 16.0),
    Sketcher.Constraint("DistanceY", 16, 2, -1, 1, 126.0),
])
sketch3.setExpression("Constraints[62]", "Params.sketch3_width")
sketch3.setExpression("Constraints[63]", "Params.sketch3_width2")
sketch3.setExpression("Constraints[64]", "Params.sketch3_height")
sketch3.setExpression("Constraints[65]", "Params.sketch3_height2")
pocket2 = body.newObject("PartDesign::Pocket", "Pocket001")
pocket2.Profile = sketch3
pocket2.Type = "ThroughAll"
pocket2.Reversed = True

# Sketch on XY plane
sketch4 = body.newObject("Sketcher::SketchObject", "Sketch003")
sketch4.AttachmentSupport = (doc.getObject("XY_Plane"), [""])
sketch4.MapMode = "FlatFace"
sketch4.addGeometry([
    Part.LineSegment(Vector(-216, -169, 0), Vector(-226, -169, 0)),  # 0
    Part.LineSegment(Vector(-226, -169, 0), Vector(-226, -126, 0)),  # 1
    Part.LineSegment(Vector(-226, -126, 0), Vector(-216, -126, 0)),  # 2
    Part.LineSegment(Vector(-216, -126, 0), Vector(-216, -120, 0)),  # 3
    Part.LineSegment(Vector(-216, -120, 0), Vector(-189, -120, 0)),  # 4
    Part.LineSegment(Vector(-189, -120, 0), Vector(-189, -126, 0)),  # 5
    Part.LineSegment(Vector(-189, -126, 0), Vector(-179, -126, 0)),  # 6
    Part.LineSegment(Vector(-179, -126, 0), Vector(-179, -120, 0)),  # 7
    Part.LineSegment(Vector(-179, -120, 0), Vector(-152, -120, 0)),  # 8
    Part.LineSegment(Vector(-152, -120, 0), Vector(-152, -126, 0)),  # 9
    Part.LineSegment(Vector(-152, -126, 0), Vector(-142, -126, 0)),  # 10
    Part.LineSegment(Vector(-142, -126, 0), Vector(-142, -120, 0)),  # 11
    Part.LineSegment(Vector(-142, -120, 0), Vector(-115, -120, 0)),  # 12
    Part.LineSegment(Vector(-115, -120, 0), Vector(-115, -126, 0)),  # 13
    Part.LineSegment(Vector(-115, -126, 0), Vector(-105, -126, 0)),  # 14
    Part.LineSegment(Vector(-105, -126, 0), Vector(-105, -169, 0)),  # 15
    Part.LineSegment(Vector(-105, -169, 0), Vector(-115, -169, 0)),  # 16
    Part.LineSegment(Vector(-115, -169, 0), Vector(-115, -175, 0)),  # 17
    Part.LineSegment(Vector(-115, -175, 0), Vector(-142, -175, 0)),  # 18
    Part.LineSegment(Vector(-142, -175, 0), Vector(-142, -169, 0)),  # 19
    Part.LineSegment(Vector(-142, -169, 0), Vector(-152, -169, 0)),  # 20
    Part.LineSegment(Vector(-152, -169, 0), Vector(-152, -175, 0)),  # 21
    Part.LineSegment(Vector(-152, -175, 0), Vector(-179, -175, 0)),  # 22
    Part.LineSegment(Vector(-179, -175, 0), Vector(-179, -169, 0)),  # 23
    Part.LineSegment(Vector(-179, -169, 0), Vector(-189, -169, 0)),  # 24
    Part.LineSegment(Vector(-189, -169, 0), Vector(-189, -175, 0)),  # 25
    Part.LineSegment(Vector(-189, -175, 0), Vector(-216, -175, 0)),  # 26
    Part.LineSegment(Vector(-216, -175, 0), Vector(-216, -169, 0)),  # 27
], False)
sketch4.addConstraint([
    Sketcher.Constraint("Coincident", 0, 2, 1, 1),
    Sketcher.Constraint("Coincident", 1, 2, 2, 1),
    Sketcher.Constraint("Coincident", 2, 2, 3, 1),
    Sketcher.Constraint("Coincident", 3, 2, 4, 1),
    Sketcher.Constraint("Coincident", 4, 2, 5, 1),
    Sketcher.Constraint("Coincident", 5, 2, 6, 1),
    Sketcher.Constraint("Coincident", 6, 2, 7, 1),
    Sketcher.Constraint("Coincident", 7, 2, 8, 1),
    Sketcher.Constraint("Coincident", 8, 2, 9, 1),
    Sketcher.Constraint("Coincident", 9, 2, 10, 1),
    Sketcher.Constraint("Coincident", 10, 2, 11, 1),
    Sketcher.Constraint("Coincident", 11, 2, 12, 1),
    Sketcher.Constraint("Coincident", 12, 2, 13, 1),
    Sketcher.Constraint("Coincident", 13, 2, 14, 1),
    Sketcher.Constraint("Coincident", 14, 2, 15, 1),
    Sketcher.Constraint("Coincident", 15, 2, 16, 1),
    Sketcher.Constraint("Coincident", 16, 2, 17, 1),
    Sketcher.Constraint("Coincident", 17, 2, 18, 1),
    Sketcher.Constraint("Coincident", 18, 2, 19, 1),
    Sketcher.Constraint("Coincident", 19, 2, 20, 1),
    Sketcher.Constraint("Coincident", 20, 2, 21, 1),
    Sketcher.Constraint("Coincident", 21, 2, 22, 1),
    Sketcher.Constraint("Coincident", 22, 2, 23, 1),
    Sketcher.Constraint("Coincident", 23, 2, 24, 1),
    Sketcher.Constraint("Coincident", 24, 2, 25, 1),
    Sketcher.Constraint("Coincident", 25, 2, 26, 1),
    Sketcher.Constraint("Coincident", 26, 2, 27, 1),
    Sketcher.Constraint("Coincident", 27, 2, 0, 1),
    Sketcher.Constraint("Horizontal", 0),
    Sketcher.Constraint("Vertical", 1),
    Sketcher.Constraint("Horizontal", 2),
    Sketcher.Constraint("Vertical", 3),
    Sketcher.Constraint("Horizontal", 4),
    Sketcher.Constraint("Vertical", 5),
    Sketcher.Constraint("Horizontal", 6),
    Sketcher.Constraint("Vertical", 7),
    Sketcher.Constraint("Horizontal", 8),
    Sketcher.Constraint("Vertical", 9),
    Sketcher.Constraint("Horizontal", 10),
    Sketcher.Constraint("Vertical", 11),
    Sketcher.Constraint("Horizontal", 12),
    Sketcher.Constraint("Vertical", 13),
    Sketcher.Constraint("Horizontal", 14),
    Sketcher.Constraint("Vertical", 15),
    Sketcher.Constraint("Horizontal", 16),
    Sketcher.Constraint("Vertical", 17),
    Sketcher.Constraint("Horizontal", 18),
    Sketcher.Constraint("Vertical", 19),
    Sketcher.Constraint("Horizontal", 20),
    Sketcher.Constraint("Vertical", 21),
    Sketcher.Constraint("Horizontal", 22),
    Sketcher.Constraint("Vertical", 23),
    Sketcher.Constraint("Horizontal", 24),
    Sketcher.Constraint("Vertical", 25),
    Sketcher.Constraint("Horizontal", 26),
    Sketcher.Constraint("Vertical", 27),
    Sketcher.Constraint("Horizontal", 2, 2, 5, 2),
    Sketcher.Constraint("Horizontal", 4, 2, 7, 2),
    Sketcher.Constraint("Horizontal", 6, 2, 9, 2),
    Sketcher.Constraint("Horizontal", 8, 2, 11, 2),
    Sketcher.Constraint("Horizontal", 10, 2, 13, 2),
    Sketcher.Constraint("Horizontal", 0, 2, 15, 2),
    Sketcher.Constraint("Horizontal", 16, 2, 19, 2),
    Sketcher.Constraint("Horizontal", 18, 2, 21, 2),
    Sketcher.Constraint("Horizontal", 20, 2, 23, 2),
    Sketcher.Constraint("Horizontal", 22, 2, 25, 2),
    Sketcher.Constraint("Vertical", 13, 2, 16, 2),
    Sketcher.Constraint("Vertical", 11, 2, 18, 2),
    Sketcher.Constraint("Vertical", 9, 2, 20, 2),
    Sketcher.Constraint("Vertical", 7, 2, 22, 2),
    Sketcher.Constraint("Vertical", 5, 2, 24, 2),
    Sketcher.Constraint("Vertical", 3, 2, 26, 2),
    Sketcher.Constraint("Equal", 2, 6),
    Sketcher.Constraint("Equal", 4, 8),
    Sketcher.Constraint("Equal", 6, 10),
    Sketcher.Constraint("Equal", 8, 12),
    Sketcher.Constraint("Equal", 10, 14),
    Sketcher.Constraint("Equal", 13, 17),
    Sketcher.Constraint("DistanceX", 0, 2, 0, 1, 10.0),
    Sketcher.Constraint("DistanceX", 4, 1, 4, 2, 27.0),
    Sketcher.Constraint("DistanceY", 1, 1, 1, 2, 43.0),
    Sketcher.Constraint("DistanceY", 3, 1, 3, 2, 6.0),
    Sketcher.Constraint("DistanceX", 0, 2, -1, 1, 226.0),
    Sketcher.Constraint("DistanceY", 0, 2, -1, 1, 169.0),
])
sketch4.setExpression("Constraints[78]", "Params.sketch4_width")
sketch4.setExpression("Constraints[79]", "Params.sketch4_width2")
sketch4.setExpression("Constraints[80]", "Params.sketch4_height")
sketch4.setExpression("Constraints[81]", "Params.sketch4_height2")
pocket3 = body.newObject("PartDesign::Pocket", "Pocket002")
pocket3.Profile = sketch4
pocket3.setExpression("Length", "Params.pocket3_length")
pocket3.Reversed = True

doc.recompute()
